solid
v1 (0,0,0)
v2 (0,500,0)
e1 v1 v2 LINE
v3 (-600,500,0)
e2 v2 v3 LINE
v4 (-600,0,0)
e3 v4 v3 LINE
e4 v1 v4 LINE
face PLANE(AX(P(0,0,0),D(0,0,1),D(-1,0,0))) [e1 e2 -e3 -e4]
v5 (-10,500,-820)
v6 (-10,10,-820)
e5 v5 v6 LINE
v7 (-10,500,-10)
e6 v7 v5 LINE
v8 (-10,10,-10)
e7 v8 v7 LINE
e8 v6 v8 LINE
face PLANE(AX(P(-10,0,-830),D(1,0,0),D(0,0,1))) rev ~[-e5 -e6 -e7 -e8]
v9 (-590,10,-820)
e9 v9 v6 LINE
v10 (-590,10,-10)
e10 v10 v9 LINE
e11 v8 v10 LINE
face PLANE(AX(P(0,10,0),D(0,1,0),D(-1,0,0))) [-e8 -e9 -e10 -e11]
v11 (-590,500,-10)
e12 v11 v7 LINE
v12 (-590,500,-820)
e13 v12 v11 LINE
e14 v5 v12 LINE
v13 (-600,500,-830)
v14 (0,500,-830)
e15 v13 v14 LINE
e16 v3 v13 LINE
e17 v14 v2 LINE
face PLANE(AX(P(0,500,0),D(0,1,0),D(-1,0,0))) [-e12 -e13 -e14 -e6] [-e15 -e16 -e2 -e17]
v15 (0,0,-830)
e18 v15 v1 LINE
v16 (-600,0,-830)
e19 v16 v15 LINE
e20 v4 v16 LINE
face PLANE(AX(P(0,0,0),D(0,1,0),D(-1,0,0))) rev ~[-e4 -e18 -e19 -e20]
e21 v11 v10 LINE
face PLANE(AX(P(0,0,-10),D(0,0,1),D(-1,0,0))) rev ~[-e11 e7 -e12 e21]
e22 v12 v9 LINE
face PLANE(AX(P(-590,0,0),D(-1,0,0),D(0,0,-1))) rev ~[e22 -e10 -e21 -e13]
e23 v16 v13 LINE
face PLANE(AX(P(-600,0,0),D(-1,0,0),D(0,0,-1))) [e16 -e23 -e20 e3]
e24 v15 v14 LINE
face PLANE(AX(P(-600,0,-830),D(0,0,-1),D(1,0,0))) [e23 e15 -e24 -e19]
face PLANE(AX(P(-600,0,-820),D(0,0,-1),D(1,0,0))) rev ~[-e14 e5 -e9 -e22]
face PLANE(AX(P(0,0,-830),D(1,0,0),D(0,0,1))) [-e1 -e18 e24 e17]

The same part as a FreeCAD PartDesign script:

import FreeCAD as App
import Part
import Sketcher

V = App.Vector


def faces_at(feature, points):
    """Names of the faces that lie closest to the given points."""
    faces = feature.Shape.Faces
    near = lambda p: min(range(len(faces)), key=lambda i: faces[i].distToShape(Part.Vertex(*p))[0])
    return sorted({f"Face{near(p) + 1}" for p in points})


def add_polygon(sketch, points):
    """Adds a closed chain of lines whose ends are joined by coincident constraints."""
    first, n = sketch.GeometryCount, len(points)
    for a, b in zip(points, points[1:] + points[:1]):
        sketch.addGeometry(Part.LineSegment(App.Vector(*a, 0), App.Vector(*b, 0)), False)
    for i in range(n):
        sketch.addConstraint(Sketcher.Constraint("Coincident", first + i, 2, first + (i + 1) % n, 1))

doc = App.newDocument("Part")
body = doc.addObject("PartDesign::Body", "Body")

# Sketch on XZ plane
sketch1 = body.newObject("Sketcher::SketchObject", "Sketch")
sketch1.AttachmentSupport = (doc.getObject("XZ_Plane"), [""])
sketch1.MapMode = "FlatFace"
add_polygon(sketch1, [(-600, 0), (0, 0), (0, -830), (-600, -830)])  # lines 0-3
sketch1.addConstraint([
    Sketcher.Constraint("Horizontal", 0),
    Sketcher.Constraint("Vertical", 1),
    Sketcher.Constraint("Horizontal", 2),
    Sketcher.Constraint("Vertical", 3),
    Sketcher.Constraint("Coincident", 0, 2, -1, 1),
    Sketcher.Constraint("DistanceX", 0, 1, 0, 2, 600.0),
    Sketcher.Constraint("DistanceY", 1, 2, 1, 1, 830.0),
])
pad1 = body.newObject("PartDesign::Pad", "Pad")
pad1.Profile = sketch1
pad1.Length = 500
pad1.Reversed = True
doc.recompute()

thickness = body.newObject("PartDesign::Thickness", "Thickness")
thickness.Base = (pad1, faces_at(pad1, [(-200, 500, -276.667)]))
thickness.Value = 10
thickness.Reversed = True
thickness.Join = "Intersection"

doc.recompute()
